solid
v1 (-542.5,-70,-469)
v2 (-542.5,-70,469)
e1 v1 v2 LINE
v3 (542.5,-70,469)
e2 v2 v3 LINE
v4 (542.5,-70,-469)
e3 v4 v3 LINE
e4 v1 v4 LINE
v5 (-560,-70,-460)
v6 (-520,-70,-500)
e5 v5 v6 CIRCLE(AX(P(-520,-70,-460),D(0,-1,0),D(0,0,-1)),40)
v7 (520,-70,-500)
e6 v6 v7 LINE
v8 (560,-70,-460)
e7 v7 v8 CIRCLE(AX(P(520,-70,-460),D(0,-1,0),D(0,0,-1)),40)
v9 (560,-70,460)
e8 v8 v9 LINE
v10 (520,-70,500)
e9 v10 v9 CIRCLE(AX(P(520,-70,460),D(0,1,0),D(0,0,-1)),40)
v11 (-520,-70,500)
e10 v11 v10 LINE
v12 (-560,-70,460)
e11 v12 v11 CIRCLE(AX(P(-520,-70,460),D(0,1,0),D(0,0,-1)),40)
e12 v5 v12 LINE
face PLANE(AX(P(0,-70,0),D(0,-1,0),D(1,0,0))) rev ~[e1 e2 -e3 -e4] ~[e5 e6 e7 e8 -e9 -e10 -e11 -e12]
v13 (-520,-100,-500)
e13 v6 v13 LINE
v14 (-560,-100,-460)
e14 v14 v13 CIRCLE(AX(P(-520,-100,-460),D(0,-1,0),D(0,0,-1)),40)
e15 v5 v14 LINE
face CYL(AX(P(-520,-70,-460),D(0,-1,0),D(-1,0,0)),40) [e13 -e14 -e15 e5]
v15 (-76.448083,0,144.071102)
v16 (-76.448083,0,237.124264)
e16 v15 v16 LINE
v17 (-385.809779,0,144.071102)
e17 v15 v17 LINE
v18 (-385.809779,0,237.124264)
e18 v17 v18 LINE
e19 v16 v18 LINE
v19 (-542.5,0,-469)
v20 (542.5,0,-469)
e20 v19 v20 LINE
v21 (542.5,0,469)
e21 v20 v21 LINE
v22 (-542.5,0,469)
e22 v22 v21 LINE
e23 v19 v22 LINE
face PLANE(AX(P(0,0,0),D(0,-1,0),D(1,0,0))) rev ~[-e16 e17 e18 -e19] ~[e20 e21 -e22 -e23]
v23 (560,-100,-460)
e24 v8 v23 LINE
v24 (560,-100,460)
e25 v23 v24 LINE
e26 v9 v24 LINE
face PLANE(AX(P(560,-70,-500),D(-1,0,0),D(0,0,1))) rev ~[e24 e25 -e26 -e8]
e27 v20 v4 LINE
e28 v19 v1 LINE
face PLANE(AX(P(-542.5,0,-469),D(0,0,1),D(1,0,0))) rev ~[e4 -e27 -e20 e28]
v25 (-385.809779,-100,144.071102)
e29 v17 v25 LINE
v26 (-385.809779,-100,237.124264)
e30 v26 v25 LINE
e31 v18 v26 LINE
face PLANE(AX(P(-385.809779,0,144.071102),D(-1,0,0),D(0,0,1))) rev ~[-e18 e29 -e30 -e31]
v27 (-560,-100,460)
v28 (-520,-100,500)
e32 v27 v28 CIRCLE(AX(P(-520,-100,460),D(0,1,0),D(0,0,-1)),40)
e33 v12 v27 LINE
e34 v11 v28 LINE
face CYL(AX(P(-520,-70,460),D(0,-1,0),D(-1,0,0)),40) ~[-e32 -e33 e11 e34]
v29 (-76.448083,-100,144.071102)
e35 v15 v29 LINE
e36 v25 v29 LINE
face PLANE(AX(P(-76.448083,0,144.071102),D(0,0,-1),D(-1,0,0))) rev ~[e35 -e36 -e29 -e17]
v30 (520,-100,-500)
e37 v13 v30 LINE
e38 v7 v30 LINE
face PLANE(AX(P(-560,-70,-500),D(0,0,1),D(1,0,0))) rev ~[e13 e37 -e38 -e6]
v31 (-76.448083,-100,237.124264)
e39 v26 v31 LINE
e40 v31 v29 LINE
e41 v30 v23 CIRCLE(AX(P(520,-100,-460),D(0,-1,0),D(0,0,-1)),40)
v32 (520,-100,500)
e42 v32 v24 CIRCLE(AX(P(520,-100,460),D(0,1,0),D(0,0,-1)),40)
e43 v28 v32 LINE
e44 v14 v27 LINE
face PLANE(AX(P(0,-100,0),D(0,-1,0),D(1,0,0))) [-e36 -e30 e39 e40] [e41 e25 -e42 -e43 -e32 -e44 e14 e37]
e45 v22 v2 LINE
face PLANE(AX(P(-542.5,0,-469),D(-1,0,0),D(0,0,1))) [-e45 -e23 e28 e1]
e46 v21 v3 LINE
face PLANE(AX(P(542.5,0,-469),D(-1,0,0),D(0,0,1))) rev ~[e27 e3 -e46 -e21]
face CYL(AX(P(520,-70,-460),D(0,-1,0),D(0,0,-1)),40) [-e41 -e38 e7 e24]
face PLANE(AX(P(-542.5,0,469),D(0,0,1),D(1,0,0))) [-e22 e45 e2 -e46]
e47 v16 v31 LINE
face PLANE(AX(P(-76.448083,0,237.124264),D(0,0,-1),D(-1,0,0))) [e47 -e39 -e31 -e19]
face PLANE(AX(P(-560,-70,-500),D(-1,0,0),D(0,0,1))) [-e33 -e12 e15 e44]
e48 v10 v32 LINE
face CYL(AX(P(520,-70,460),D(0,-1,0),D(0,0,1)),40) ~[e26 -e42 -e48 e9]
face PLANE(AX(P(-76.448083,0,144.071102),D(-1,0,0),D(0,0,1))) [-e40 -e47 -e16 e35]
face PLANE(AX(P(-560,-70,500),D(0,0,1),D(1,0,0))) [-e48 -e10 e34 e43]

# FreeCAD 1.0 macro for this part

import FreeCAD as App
import Part
import Sketcher
Q = App.Units.Quantity


def edges_at(feature, points):
    """Names of the edges that pass closest to the given points."""
    edges = feature.Shape.Edges
    near = lambda p: min(range(len(edges)), key=lambda i: edges[i].distToShape(Part.Vertex(*p))[0])
    return sorted({f"Edge{near(p) + 1}" for p in points})

doc = App.newDocument("Part")
body = doc.addObject("PartDesign::Body", "Body")

# Sketch on XZ plane
sketch1 = doc.addObject("Sketcher::SketchObject", "Sketch")
body.addObject(sketch1)
sketch1.AttachmentSupport = (doc.XZ_Plane, [""])
sketch1.MapMode = "FlatFace"
sketch1.addGeometry(Part.LineSegment(App.Vector(-542, 469, 0), App.Vector(-542, -469, 0)), False)
sketch1.addGeometry(Part.LineSegment(App.Vector(-542, -469, 0), App.Vector(542, -469, 0)), False)
sketch1.addGeometry(Part.LineSegment(App.Vector(542, -469, 0), App.Vector(542, 469, 0)), False)
sketch1.addGeometry(Part.LineSegment(App.Vector(542, 469, 0), App.Vector(-542, 469, 0)), False)
sketch1.addConstraint(Sketcher.Constraint("Coincident", 0, 2, 1, 1))
sketch1.addConstraint(Sketcher.Constraint("Coincident", 1, 2, 2, 1))
sketch1.addConstraint(Sketcher.Constraint("Coincident", 2, 2, 3, 1))
sketch1.addConstraint(Sketcher.Constraint("Coincident", 3, 2, 0, 1))
sketch1.addConstraint(Sketcher.Constraint("Vertical", 0))
sketch1.addConstraint(Sketcher.Constraint("Horizontal", 1))
sketch1.addConstraint(Sketcher.Constraint("Vertical", 2))
sketch1.addConstraint(Sketcher.Constraint("Horizontal", 3))
sketch1.addConstraint(Sketcher.Constraint("Symmetric", 0, 2, 2, 2, -1, 1))
sketch1.addConstraint(Sketcher.Constraint("DistanceX", 1, 1, 1, 2, Q("1085 mm")))
sketch1.addConstraint(Sketcher.Constraint("DistanceY", 0, 2, 0, 1, Q("938 mm")))
pad1 = doc.addObject("PartDesign::Pad", "Pad")
body.addObject(pad1)
pad1.Profile = sketch1
pad1.Length = 70

# Sketch on XZ plane
sketch2 = doc.addObject("Sketcher::SketchObject", "Sketch001")
body.addObject(sketch2)
sketch2.AttachmentSupport = (doc.XZ_Plane, [""])
sketch2.MapMode = "FlatFace"
sketch2.AttachmentOffset = App.Placement(App.Vector(0, 0, 70), App.Rotation())
sketch2.addGeometry(Part.LineSegment(App.Vector(-560, 500, 0), App.Vector(-560, -500, 0)), False)
sketch2.addGeometry(Part.LineSegment(App.Vector(-560, -500, 0), App.Vector(560, -500, 0)), False)
sketch2.addGeometry(Part.LineSegment(App.Vector(560, -500, 0), App.Vector(560, 500, 0)), False)
sketch2.addGeometry(Part.LineSegment(App.Vector(560, 500, 0), App.Vector(-560, 500, 0)), False)
sketch2.addConstraint(Sketcher.Constraint("Coincident", 0, 2, 1, 1))
sketch2.addConstraint(Sketcher.Constraint("Coincident", 1, 2, 2, 1))
sketch2.addConstraint(Sketcher.Constraint("Coincident", 2, 2, 3, 1))
sketch2.addConstraint(Sketcher.Constraint("Coincident", 3, 2, 0, 1))
sketch2.addConstraint(Sketcher.Constraint("Vertical", 0))
sketch2.addConstraint(Sketcher.Constraint("Horizontal", 1))
sketch2.addConstraint(Sketcher.Constraint("Vertical", 2))
sketch2.addConstraint(Sketcher.Constraint("Horizontal", 3))
sketch2.addConstraint(Sketcher.Constraint("Symmetric", 0, 2, 2, 2, -1, 1))
sketch2.addConstraint(Sketcher.Constraint("DistanceX", 1, 1, 1, 2, Q("1120 mm")))
sketch2.addConstraint(Sketcher.Constraint("DistanceY", 0, 2, 0, 1, Q("1000 mm")))
pad2 = doc.addObject("PartDesign::Pad", "Pad001")
body.addObject(pad2)
pad2.Profile = sketch2
pad2.Length = 30

# Sketch on XZ plane
sketch3 = doc.addObject("Sketcher::SketchObject", "Sketch002")
body.addObject(sketch3)
sketch3.AttachmentSupport = (doc.XZ_Plane, [""])
sketch3.MapMode = "FlatFace"
sketch3.addGeometry(Part.LineSegment(App.Vector(-76, 237, 0), App.Vector(-76, 144, 0)), False)
sketch3.addGeometry(Part.LineSegment(App.Vector(-76, 144, 0), App.Vector(-386, 144, 0)), False)
sketch3.addGeometry(Part.LineSegment(App.Vector(-386, 144, 0), App.Vector(-386, 237, 0)), False)
sketch3.addGeometry(Part.LineSegment(App.Vector(-386, 237, 0), App.Vector(-76, 237, 0)), False)
sketch3.addConstraint(Sketcher.Constraint("Coincident", 0, 2, 1, 1))
sketch3.addConstraint(Sketcher.Constraint("Coincident", 1, 2, 2, 1))
sketch3.addConstraint(Sketcher.Constraint("Coincident", 2, 2, 3, 1))
sketch3.addConstraint(Sketcher.Constraint("Coincident", 3, 2, 0, 1))
sketch3.addConstraint(Sketcher.Constraint("Vertical", 0))
sketch3.addConstraint(Sketcher.Constraint("Horizontal", 1))
sketch3.addConstraint(Sketcher.Constraint("Vertical", 2))
sketch3.addConstraint(Sketcher.Constraint("Horizontal", 3))
sketch3.addConstraint(Sketcher.Constraint("DistanceX", 1, 2, 1, 1, Q("309.361696 mm")))
sketch3.addConstraint(Sketcher.Constraint("DistanceY", 0, 2, 0, 1, Q("93.053162 mm")))
sketch3.addConstraint(Sketcher.Constraint("DistanceX", 1, 2, -1, 1, Q("385.809779 mm")))
sketch3.addConstraint(Sketcher.Constraint("DistanceY", -1, 1, 0, 2, Q("144.071102 mm")))
pocket1 = doc.addObject("PartDesign::Pocket", "Pocket")
body.addObject(pocket1)
pocket1.Profile = sketch3
pocket1.Length = 300
pocket1.Reversed = True
doc.recompute()

fillet = doc.addObject("PartDesign::Fillet", "Fillet")
body.addObject(fillet)
fillet.Base = (pocket1, edges_at(pocket1, [
    (-560, -85, 500),
    (560, -85, 500),
    (560, -85, -500),
    (-560, -85, -500),
]))
fillet.Radius = 40

doc.recompute()
